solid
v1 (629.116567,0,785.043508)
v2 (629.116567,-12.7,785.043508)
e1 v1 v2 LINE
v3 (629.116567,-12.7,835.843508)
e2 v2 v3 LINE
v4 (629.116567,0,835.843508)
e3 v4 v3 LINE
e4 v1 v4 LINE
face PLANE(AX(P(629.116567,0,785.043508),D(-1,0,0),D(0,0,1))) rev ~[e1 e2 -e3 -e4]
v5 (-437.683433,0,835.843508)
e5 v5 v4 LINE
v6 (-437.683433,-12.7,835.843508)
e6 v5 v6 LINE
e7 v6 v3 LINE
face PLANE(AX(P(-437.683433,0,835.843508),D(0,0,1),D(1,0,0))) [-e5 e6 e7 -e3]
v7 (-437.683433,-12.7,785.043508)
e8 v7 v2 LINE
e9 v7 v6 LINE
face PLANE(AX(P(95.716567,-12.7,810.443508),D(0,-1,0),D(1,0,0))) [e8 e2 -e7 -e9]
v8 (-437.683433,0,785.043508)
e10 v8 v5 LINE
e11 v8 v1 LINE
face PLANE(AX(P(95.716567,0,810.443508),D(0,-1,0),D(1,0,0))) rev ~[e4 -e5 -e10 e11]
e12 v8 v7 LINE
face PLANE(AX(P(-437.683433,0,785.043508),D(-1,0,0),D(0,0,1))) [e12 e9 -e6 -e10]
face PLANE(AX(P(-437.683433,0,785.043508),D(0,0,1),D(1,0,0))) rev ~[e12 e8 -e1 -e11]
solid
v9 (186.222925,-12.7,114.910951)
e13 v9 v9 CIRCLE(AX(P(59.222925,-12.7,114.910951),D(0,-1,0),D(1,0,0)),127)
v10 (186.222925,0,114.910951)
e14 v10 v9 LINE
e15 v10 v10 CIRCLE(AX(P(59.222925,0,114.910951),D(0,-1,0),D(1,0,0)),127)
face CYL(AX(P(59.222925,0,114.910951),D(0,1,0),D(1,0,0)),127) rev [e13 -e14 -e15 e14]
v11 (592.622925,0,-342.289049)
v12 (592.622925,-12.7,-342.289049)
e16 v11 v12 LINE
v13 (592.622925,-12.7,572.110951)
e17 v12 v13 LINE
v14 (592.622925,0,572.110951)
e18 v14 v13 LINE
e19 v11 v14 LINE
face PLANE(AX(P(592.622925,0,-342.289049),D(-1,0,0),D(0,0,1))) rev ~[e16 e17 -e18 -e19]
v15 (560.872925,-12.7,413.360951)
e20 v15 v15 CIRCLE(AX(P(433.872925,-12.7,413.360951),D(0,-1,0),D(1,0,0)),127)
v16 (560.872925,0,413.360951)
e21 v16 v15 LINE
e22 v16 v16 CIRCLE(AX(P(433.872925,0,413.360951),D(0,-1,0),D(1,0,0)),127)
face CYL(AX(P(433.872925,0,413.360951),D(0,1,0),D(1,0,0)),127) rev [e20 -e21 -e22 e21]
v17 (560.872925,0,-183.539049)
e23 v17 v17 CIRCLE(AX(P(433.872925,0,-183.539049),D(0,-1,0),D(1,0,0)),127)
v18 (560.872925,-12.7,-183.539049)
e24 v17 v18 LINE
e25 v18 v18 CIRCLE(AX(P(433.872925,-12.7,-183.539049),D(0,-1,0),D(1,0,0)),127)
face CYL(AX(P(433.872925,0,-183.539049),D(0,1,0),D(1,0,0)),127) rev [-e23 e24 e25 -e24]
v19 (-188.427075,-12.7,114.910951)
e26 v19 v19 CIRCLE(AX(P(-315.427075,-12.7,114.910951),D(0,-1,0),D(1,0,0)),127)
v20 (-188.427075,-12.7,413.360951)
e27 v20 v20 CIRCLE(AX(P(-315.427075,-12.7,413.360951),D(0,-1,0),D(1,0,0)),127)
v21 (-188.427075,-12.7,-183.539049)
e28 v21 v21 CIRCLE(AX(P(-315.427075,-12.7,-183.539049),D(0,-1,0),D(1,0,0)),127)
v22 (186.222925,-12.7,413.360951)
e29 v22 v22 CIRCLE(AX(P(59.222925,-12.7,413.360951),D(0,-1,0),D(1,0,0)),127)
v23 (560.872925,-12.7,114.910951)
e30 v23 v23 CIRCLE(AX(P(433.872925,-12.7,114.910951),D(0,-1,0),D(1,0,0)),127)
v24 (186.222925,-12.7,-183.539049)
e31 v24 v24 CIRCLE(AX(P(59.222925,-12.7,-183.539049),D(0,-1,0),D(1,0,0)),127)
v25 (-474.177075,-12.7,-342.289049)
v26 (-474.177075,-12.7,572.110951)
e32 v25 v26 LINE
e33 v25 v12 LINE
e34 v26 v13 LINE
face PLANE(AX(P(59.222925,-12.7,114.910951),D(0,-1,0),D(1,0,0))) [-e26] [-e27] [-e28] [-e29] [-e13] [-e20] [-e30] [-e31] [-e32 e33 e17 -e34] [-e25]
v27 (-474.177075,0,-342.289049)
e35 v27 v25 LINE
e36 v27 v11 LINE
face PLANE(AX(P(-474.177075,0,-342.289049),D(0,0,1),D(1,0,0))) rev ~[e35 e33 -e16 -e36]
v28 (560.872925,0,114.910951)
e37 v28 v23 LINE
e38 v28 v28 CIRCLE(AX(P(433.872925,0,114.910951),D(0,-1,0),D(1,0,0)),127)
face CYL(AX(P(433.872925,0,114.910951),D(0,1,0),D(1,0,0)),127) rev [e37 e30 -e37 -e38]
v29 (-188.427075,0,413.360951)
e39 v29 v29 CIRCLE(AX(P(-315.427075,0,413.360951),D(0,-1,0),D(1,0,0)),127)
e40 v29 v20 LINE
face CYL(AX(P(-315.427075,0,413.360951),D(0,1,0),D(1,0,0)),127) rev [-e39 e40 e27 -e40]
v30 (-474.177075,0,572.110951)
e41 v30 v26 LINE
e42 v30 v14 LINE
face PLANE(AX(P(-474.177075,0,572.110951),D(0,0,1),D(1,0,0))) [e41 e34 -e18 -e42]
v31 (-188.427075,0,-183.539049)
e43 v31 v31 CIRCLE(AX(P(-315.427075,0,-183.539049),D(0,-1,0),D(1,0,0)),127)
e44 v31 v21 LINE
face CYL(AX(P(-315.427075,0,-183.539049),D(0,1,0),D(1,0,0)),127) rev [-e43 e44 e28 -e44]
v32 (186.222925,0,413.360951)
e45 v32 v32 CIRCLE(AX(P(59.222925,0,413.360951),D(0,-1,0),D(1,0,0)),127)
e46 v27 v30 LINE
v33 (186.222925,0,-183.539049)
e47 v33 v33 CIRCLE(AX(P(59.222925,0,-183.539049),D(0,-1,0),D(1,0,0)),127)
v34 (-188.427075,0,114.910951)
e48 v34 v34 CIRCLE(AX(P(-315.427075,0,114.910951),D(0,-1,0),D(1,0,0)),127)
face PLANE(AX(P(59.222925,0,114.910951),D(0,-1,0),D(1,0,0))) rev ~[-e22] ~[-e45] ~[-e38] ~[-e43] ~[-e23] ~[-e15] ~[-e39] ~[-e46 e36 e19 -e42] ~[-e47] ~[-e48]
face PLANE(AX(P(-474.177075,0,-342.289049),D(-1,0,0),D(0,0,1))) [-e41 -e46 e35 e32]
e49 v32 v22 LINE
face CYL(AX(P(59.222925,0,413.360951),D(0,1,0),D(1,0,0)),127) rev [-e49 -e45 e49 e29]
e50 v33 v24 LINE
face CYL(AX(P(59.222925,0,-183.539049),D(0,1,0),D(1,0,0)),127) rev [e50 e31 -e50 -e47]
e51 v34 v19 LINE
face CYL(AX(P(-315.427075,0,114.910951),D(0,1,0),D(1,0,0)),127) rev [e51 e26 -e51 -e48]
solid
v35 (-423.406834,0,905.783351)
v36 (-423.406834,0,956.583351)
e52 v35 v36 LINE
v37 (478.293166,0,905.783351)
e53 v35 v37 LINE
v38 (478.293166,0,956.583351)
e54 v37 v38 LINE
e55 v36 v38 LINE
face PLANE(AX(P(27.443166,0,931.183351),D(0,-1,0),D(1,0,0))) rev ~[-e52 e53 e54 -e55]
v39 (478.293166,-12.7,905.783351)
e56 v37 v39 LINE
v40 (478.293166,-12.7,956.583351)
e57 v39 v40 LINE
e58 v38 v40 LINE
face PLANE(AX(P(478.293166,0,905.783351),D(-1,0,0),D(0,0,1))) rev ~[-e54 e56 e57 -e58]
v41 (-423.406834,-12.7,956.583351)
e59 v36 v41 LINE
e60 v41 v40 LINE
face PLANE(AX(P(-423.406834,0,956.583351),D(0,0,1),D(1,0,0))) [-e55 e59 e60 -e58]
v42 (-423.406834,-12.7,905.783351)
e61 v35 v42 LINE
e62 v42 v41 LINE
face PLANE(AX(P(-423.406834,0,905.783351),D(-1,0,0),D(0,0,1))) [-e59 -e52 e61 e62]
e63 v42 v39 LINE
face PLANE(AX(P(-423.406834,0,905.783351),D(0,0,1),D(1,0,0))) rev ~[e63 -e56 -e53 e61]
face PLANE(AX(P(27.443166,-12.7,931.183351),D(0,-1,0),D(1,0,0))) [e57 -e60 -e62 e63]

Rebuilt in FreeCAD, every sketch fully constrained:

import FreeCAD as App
import Part
import Sketcher

V = App.Vector
Q = App.Units.Quantity


def add_polygon(sketch, points):
    """Adds a closed chain of lines whose ends are joined by coincident constraints."""
    first, n = sketch.GeometryCount, len(points)
    for a, b in zip(points, points[1:] + points[:1]):
        sketch.addGeometry(Part.LineSegment(App.Vector(*a, 0), App.Vector(*b, 0)), False)
    for i in range(n):
        sketch.addConstraint(Sketcher.Constraint("Coincident", first + i, 2, first + (i + 1) % n, 1))

doc = App.newDocument("Part")
body = doc.addObject("PartDesign::Body", "Body")

# Sketch on XZ plane
sketch1 = doc.addObject("Sketcher::SketchObject", "Sketch")
body.addObject(sketch1)
sketch1.AttachmentSupport = (doc.XZ_Plane, [""])
sketch1.MapMode = "FlatFace"
add_polygon(sketch1, [(-474, 572), (-474, -342), (593, -342), (593, 572)])  # lines 0-3
sketch1.addGeometry(Part.Circle(V(-315, -184, 0), V(0, 0, 1), 127), False)  # 4
sketch1.addGeometry(Part.Circle(V(59, -184, 0), V(0, 0, 1), 127), False)  # 5
sketch1.addGeometry(Part.Circle(V(434, -184, 0), V(0, 0, 1), 127), False)  # 6
sketch1.addGeometry(Part.Circle(V(-315, 115, 0), V(0, 0, 1), 127), False)  # 7
sketch1.addGeometry(Part.Circle(V(-315, 413, 0), V(0, 0, 1), 127), False)  # 8
sketch1.addGeometry(Part.Circle(V(59, 115, 0), V(0, 0, 1), 127), False)  # 9
sketch1.addGeometry(Part.Circle(V(434, 115, 0), V(0, 0, 1), 127), False)  # 10
sketch1.addGeometry(Part.Circle(V(59, 413, 0), V(0, 0, 1), 127), False)  # 11
sketch1.addGeometry(Part.Circle(V(434, 413, 0), V(0, 0, 1), 127), False)  # 12
sketch1.addConstraint(Sketcher.Constraint("Vertical", 0))
sketch1.addConstraint(Sketcher.Constraint("Horizontal", 1))
sketch1.addConstraint(Sketcher.Constraint("Vertical", 2))
sketch1.addConstraint(Sketcher.Constraint("Horizontal", 3))
sketch1.addConstraint(Sketcher.Constraint("Equal", 4, 5))
sketch1.addConstraint(Sketcher.Constraint("Equal", 5, 6))
sketch1.addConstraint(Sketcher.Constraint("Equal", 6, 7))
sketch1.addConstraint(Sketcher.Constraint("Equal", 7, 8))
sketch1.addConstraint(Sketcher.Constraint("Equal", 8, 9))
sketch1.addConstraint(Sketcher.Constraint("Equal", 9, 10))
sketch1.addConstraint(Sketcher.Constraint("Equal", 10, 11))
sketch1.addConstraint(Sketcher.Constraint("Equal", 11, 12))
sketch1.addConstraint(Sketcher.Constraint("Horizontal", 4, 3, 5, 3))
sketch1.addConstraint(Sketcher.Constraint("Horizontal", 5, 3, 6, 3))
sketch1.addConstraint(Sketcher.Constraint("Horizontal", 7, 3, 9, 3))
sketch1.addConstraint(Sketcher.Constraint("Horizontal", 9, 3, 10, 3))
sketch1.addConstraint(Sketcher.Constraint("Horizontal", 8, 3, 11, 3))
sketch1.addConstraint(Sketcher.Constraint("Horizontal", 11, 3, 12, 3))
sketch1.addConstraint(Sketcher.Constraint("Vertical", 4, 3, 7, 3))
sketch1.addConstraint(Sketcher.Constraint("Vertical", 7, 3, 8, 3))
sketch1.addConstraint(Sketcher.Constraint("Vertical", 5, 3, 9, 3))
sketch1.addConstraint(Sketcher.Constraint("Vertical", 6, 3, 10, 3))
sketch1.addConstraint(Sketcher.Constraint("Vertical", 9, 3, 11, 3))
sketch1.addConstraint(Sketcher.Constraint("Vertical", 10, 3, 12, 3))
sketch1.addConstraint(Sketcher.Constraint("Diameter", 4, Q("10 in")))
sketch1.addConstraint(Sketcher.Constraint("DistanceX", 1, 1, 1, 2, Q("42 in")))
sketch1.addConstraint(Sketcher.Constraint("DistanceY", 0, 2, 0, 1, Q("36 in")))
sketch1.addConstraint(Sketcher.Constraint("DistanceY", 0, 2, 7, 3, Q("18 in")))
sketch1.addConstraint(Sketcher.Constraint("DistanceX", 0, 2, 5, 3, Q("21 in")))
sketch1.addConstraint(Sketcher.Constraint("DistanceX", 4, 3, 6, 3, Q("29.5 in")))
sketch1.addConstraint(Sketcher.Constraint("DistanceY", 4, 3, 8, 3, Q("23.5 in")))
sketch1.addConstraint(Sketcher.Constraint("DistanceX", 4, 3, 5, 3, Q("14.75 in")))
sketch1.addConstraint(Sketcher.Constraint("DistanceY", 4, 3, 7, 3, Q("11.75 in")))
sketch1.addConstraint(Sketcher.Constraint("DistanceY", 4, 3, -1, 1, Q("183.539049 mm")))
sketch1.addConstraint(Sketcher.Constraint("DistanceX", 4, 3, -1, 1, Q("315.427075 mm")))
pad1 = doc.addObject("PartDesign::Pad", "Pad")
body.addObject(pad1)
pad1.Profile = sketch1
pad1.Length = Q("0.5 in")
body2 = doc.addObject("PartDesign::Body", "Body001")
body2.AllowCompound = True

# Sketch on XZ plane
sketch2 = doc.addObject("Sketcher::SketchObject", "Sketch001")
body2.addObject(sketch2)
sketch2.AttachmentSupport = (doc.getObject("XZ_Plane001"), [""])
sketch2.MapMode = "FlatFace"
add_polygon(sketch2, [(-423, 957), (-423, 906), (478, 906), (478, 957)])  # lines 0-3
add_polygon(sketch2, [(-438, 836), (-438, 785), (629, 785), (629, 836)])  # lines 4-7
sketch2.addConstraint(Sketcher.Constraint("Vertical", 0))
sketch2.addConstraint(Sketcher.Constraint("Horizontal", 1))
sketch2.addConstraint(Sketcher.Constraint("Vertical", 2))
sketch2.addConstraint(Sketcher.Constraint("Horizontal", 3))
sketch2.addConstraint(Sketcher.Constraint("Vertical", 4))
sketch2.addConstraint(Sketcher.Constraint("Horizontal", 5))
sketch2.addConstraint(Sketcher.Constraint("Vertical", 6))
sketch2.addConstraint(Sketcher.Constraint("Horizontal", 7))
sketch2.addConstraint(Sketcher.Constraint("Equal", 2, 4))
sketch2.addConstraint(Sketcher.Constraint("DistanceX", 5, 1, 5, 2, Q("42 in")))
sketch2.addConstraint(Sketcher.Constraint("DistanceY", 0, 2, 0, 1, Q("2 in")))
sketch2.addConstraint(Sketcher.Constraint("DistanceX", 1, 1, 1, 2, Q("35.5 in")))
sketch2.addConstraint(Sketcher.Constraint("DistanceX", 4, 2, 0, 2, Q("14.276599 mm")))
sketch2.addConstraint(Sketcher.Constraint("DistanceY", -1, 1, 0, 2, Q("905.783351 mm")))
sketch2.addConstraint(Sketcher.Constraint("DistanceY", -1, 1, 4, 2, Q("785.043508 mm")))
sketch2.addConstraint(Sketcher.Constraint("DistanceX", 0, 2, -1, 1, Q("423.406834 mm")))
pad2 = doc.addObject("PartDesign::Pad", "Pad001")
body2.addObject(pad2)
pad2.Profile = sketch2
pad2.Length = Q("0.5 in")

doc.recompute()
